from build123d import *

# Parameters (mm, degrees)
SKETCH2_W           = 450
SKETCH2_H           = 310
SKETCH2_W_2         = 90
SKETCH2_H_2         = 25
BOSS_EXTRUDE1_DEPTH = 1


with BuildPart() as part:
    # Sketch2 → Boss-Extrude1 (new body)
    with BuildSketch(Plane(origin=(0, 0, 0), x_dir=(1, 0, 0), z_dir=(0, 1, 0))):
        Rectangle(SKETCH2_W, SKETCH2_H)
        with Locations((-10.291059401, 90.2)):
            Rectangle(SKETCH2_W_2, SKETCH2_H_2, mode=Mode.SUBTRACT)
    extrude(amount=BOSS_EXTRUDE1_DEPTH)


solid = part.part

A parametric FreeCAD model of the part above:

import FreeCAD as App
import Part
import Sketcher

V = App.Vector


def add_polygon(sketch, points):
    """Adds a closed chain of lines whose ends are joined by coincident constraints."""
    first, n = sketch.GeometryCount, len(points)
    for a, b in zip(points, points[1:] + points[:1]):
        sketch.addGeometry(Part.LineSegment(App.Vector(*a, 0), App.Vector(*b, 0)), False)
    for i in range(n):
        sketch.addConstraint(Sketcher.Constraint("Coincident", first + i, 2, first + (i + 1) % n, 1))

doc = App.newDocument("Part")
params = doc.addObject("Spreadsheet::Sheet", "Params")
for row, (alias, value) in enumerate([
    ("sketch1_width", "450 mm"),
    ("sketch1_width2", "90 mm"),
    ("sketch1_height", "310 mm"),
    ("sketch1_height2", "25 mm"),
    ("pad1_length", "1 mm"),
], start=1):
    params.set(f"A{row}", alias)
    params.set(f"B{row}", "=" + value)
    params.setAlias(f"B{row}", alias)

body = doc.addObject("PartDesign::Body", "Body")

sketch1 = body.newObject("Sketcher::SketchObject", "Sketch")
sketch1.AttachmentSupport = (doc.getObject("XZ_Plane"), [""])
sketch1.MapMode = "FlatFace"
add_polygon(sketch1, [(-225, -155), (-225, 155), (225, 155), (225, -155)])
add_polygon(sketch1, [(35, -78), (-55, -78), (-55, -103), (35, -103)])
sketch1.addConstraint([
    Sketcher.Constraint("Vertical", 0),
    Sketcher.Constraint("Horizontal", 1),
    Sketcher.Constraint("Vertical", 2),
    Sketcher.Constraint("Horizontal", 3),
    Sketcher.Constraint("Horizontal", 4),
    Sketcher.Constraint("Vertical", 5),
    Sketcher.Constraint("Horizontal", 6),
    Sketcher.Constraint("Vertical", 7),
    Sketcher.Constraint("Symmetric", 0, 2, 2, 2, -1, 1),
    Sketcher.Constraint("DistanceX", 1, 1, 1, 2, 450.0),
    Sketcher.Constraint("DistanceX", 4, 2, 4, 1, 90.0),
    Sketcher.Constraint("DistanceY", 0, 1, 0, 2, 310.0),
    Sketcher.Constraint("DistanceY", 5, 2, 5, 1, 25.0),
    Sketcher.Constraint("DistanceY", 4, 2, -1, 1, 77.7),
    Sketcher.Constraint("DistanceX", 4, 2, -1, 1, 55.291059),
])
sketch1.setExpression("Constraints[17]", "Params.sketch1_width")
sketch1.setExpression("Constraints[18]", "Params.sketch1_width2")
sketch1.setExpression("Constraints[19]", "Params.sketch1_height")
sketch1.setExpression("Constraints[20]", "Params.sketch1_height2")
pad1 = body.newObject("PartDesign::Pad", "Pad")
pad1.Profile = sketch1
pad1.setExpression("Length", "Params.pad1_length")
pad1.Reversed = True

doc.recompute()
